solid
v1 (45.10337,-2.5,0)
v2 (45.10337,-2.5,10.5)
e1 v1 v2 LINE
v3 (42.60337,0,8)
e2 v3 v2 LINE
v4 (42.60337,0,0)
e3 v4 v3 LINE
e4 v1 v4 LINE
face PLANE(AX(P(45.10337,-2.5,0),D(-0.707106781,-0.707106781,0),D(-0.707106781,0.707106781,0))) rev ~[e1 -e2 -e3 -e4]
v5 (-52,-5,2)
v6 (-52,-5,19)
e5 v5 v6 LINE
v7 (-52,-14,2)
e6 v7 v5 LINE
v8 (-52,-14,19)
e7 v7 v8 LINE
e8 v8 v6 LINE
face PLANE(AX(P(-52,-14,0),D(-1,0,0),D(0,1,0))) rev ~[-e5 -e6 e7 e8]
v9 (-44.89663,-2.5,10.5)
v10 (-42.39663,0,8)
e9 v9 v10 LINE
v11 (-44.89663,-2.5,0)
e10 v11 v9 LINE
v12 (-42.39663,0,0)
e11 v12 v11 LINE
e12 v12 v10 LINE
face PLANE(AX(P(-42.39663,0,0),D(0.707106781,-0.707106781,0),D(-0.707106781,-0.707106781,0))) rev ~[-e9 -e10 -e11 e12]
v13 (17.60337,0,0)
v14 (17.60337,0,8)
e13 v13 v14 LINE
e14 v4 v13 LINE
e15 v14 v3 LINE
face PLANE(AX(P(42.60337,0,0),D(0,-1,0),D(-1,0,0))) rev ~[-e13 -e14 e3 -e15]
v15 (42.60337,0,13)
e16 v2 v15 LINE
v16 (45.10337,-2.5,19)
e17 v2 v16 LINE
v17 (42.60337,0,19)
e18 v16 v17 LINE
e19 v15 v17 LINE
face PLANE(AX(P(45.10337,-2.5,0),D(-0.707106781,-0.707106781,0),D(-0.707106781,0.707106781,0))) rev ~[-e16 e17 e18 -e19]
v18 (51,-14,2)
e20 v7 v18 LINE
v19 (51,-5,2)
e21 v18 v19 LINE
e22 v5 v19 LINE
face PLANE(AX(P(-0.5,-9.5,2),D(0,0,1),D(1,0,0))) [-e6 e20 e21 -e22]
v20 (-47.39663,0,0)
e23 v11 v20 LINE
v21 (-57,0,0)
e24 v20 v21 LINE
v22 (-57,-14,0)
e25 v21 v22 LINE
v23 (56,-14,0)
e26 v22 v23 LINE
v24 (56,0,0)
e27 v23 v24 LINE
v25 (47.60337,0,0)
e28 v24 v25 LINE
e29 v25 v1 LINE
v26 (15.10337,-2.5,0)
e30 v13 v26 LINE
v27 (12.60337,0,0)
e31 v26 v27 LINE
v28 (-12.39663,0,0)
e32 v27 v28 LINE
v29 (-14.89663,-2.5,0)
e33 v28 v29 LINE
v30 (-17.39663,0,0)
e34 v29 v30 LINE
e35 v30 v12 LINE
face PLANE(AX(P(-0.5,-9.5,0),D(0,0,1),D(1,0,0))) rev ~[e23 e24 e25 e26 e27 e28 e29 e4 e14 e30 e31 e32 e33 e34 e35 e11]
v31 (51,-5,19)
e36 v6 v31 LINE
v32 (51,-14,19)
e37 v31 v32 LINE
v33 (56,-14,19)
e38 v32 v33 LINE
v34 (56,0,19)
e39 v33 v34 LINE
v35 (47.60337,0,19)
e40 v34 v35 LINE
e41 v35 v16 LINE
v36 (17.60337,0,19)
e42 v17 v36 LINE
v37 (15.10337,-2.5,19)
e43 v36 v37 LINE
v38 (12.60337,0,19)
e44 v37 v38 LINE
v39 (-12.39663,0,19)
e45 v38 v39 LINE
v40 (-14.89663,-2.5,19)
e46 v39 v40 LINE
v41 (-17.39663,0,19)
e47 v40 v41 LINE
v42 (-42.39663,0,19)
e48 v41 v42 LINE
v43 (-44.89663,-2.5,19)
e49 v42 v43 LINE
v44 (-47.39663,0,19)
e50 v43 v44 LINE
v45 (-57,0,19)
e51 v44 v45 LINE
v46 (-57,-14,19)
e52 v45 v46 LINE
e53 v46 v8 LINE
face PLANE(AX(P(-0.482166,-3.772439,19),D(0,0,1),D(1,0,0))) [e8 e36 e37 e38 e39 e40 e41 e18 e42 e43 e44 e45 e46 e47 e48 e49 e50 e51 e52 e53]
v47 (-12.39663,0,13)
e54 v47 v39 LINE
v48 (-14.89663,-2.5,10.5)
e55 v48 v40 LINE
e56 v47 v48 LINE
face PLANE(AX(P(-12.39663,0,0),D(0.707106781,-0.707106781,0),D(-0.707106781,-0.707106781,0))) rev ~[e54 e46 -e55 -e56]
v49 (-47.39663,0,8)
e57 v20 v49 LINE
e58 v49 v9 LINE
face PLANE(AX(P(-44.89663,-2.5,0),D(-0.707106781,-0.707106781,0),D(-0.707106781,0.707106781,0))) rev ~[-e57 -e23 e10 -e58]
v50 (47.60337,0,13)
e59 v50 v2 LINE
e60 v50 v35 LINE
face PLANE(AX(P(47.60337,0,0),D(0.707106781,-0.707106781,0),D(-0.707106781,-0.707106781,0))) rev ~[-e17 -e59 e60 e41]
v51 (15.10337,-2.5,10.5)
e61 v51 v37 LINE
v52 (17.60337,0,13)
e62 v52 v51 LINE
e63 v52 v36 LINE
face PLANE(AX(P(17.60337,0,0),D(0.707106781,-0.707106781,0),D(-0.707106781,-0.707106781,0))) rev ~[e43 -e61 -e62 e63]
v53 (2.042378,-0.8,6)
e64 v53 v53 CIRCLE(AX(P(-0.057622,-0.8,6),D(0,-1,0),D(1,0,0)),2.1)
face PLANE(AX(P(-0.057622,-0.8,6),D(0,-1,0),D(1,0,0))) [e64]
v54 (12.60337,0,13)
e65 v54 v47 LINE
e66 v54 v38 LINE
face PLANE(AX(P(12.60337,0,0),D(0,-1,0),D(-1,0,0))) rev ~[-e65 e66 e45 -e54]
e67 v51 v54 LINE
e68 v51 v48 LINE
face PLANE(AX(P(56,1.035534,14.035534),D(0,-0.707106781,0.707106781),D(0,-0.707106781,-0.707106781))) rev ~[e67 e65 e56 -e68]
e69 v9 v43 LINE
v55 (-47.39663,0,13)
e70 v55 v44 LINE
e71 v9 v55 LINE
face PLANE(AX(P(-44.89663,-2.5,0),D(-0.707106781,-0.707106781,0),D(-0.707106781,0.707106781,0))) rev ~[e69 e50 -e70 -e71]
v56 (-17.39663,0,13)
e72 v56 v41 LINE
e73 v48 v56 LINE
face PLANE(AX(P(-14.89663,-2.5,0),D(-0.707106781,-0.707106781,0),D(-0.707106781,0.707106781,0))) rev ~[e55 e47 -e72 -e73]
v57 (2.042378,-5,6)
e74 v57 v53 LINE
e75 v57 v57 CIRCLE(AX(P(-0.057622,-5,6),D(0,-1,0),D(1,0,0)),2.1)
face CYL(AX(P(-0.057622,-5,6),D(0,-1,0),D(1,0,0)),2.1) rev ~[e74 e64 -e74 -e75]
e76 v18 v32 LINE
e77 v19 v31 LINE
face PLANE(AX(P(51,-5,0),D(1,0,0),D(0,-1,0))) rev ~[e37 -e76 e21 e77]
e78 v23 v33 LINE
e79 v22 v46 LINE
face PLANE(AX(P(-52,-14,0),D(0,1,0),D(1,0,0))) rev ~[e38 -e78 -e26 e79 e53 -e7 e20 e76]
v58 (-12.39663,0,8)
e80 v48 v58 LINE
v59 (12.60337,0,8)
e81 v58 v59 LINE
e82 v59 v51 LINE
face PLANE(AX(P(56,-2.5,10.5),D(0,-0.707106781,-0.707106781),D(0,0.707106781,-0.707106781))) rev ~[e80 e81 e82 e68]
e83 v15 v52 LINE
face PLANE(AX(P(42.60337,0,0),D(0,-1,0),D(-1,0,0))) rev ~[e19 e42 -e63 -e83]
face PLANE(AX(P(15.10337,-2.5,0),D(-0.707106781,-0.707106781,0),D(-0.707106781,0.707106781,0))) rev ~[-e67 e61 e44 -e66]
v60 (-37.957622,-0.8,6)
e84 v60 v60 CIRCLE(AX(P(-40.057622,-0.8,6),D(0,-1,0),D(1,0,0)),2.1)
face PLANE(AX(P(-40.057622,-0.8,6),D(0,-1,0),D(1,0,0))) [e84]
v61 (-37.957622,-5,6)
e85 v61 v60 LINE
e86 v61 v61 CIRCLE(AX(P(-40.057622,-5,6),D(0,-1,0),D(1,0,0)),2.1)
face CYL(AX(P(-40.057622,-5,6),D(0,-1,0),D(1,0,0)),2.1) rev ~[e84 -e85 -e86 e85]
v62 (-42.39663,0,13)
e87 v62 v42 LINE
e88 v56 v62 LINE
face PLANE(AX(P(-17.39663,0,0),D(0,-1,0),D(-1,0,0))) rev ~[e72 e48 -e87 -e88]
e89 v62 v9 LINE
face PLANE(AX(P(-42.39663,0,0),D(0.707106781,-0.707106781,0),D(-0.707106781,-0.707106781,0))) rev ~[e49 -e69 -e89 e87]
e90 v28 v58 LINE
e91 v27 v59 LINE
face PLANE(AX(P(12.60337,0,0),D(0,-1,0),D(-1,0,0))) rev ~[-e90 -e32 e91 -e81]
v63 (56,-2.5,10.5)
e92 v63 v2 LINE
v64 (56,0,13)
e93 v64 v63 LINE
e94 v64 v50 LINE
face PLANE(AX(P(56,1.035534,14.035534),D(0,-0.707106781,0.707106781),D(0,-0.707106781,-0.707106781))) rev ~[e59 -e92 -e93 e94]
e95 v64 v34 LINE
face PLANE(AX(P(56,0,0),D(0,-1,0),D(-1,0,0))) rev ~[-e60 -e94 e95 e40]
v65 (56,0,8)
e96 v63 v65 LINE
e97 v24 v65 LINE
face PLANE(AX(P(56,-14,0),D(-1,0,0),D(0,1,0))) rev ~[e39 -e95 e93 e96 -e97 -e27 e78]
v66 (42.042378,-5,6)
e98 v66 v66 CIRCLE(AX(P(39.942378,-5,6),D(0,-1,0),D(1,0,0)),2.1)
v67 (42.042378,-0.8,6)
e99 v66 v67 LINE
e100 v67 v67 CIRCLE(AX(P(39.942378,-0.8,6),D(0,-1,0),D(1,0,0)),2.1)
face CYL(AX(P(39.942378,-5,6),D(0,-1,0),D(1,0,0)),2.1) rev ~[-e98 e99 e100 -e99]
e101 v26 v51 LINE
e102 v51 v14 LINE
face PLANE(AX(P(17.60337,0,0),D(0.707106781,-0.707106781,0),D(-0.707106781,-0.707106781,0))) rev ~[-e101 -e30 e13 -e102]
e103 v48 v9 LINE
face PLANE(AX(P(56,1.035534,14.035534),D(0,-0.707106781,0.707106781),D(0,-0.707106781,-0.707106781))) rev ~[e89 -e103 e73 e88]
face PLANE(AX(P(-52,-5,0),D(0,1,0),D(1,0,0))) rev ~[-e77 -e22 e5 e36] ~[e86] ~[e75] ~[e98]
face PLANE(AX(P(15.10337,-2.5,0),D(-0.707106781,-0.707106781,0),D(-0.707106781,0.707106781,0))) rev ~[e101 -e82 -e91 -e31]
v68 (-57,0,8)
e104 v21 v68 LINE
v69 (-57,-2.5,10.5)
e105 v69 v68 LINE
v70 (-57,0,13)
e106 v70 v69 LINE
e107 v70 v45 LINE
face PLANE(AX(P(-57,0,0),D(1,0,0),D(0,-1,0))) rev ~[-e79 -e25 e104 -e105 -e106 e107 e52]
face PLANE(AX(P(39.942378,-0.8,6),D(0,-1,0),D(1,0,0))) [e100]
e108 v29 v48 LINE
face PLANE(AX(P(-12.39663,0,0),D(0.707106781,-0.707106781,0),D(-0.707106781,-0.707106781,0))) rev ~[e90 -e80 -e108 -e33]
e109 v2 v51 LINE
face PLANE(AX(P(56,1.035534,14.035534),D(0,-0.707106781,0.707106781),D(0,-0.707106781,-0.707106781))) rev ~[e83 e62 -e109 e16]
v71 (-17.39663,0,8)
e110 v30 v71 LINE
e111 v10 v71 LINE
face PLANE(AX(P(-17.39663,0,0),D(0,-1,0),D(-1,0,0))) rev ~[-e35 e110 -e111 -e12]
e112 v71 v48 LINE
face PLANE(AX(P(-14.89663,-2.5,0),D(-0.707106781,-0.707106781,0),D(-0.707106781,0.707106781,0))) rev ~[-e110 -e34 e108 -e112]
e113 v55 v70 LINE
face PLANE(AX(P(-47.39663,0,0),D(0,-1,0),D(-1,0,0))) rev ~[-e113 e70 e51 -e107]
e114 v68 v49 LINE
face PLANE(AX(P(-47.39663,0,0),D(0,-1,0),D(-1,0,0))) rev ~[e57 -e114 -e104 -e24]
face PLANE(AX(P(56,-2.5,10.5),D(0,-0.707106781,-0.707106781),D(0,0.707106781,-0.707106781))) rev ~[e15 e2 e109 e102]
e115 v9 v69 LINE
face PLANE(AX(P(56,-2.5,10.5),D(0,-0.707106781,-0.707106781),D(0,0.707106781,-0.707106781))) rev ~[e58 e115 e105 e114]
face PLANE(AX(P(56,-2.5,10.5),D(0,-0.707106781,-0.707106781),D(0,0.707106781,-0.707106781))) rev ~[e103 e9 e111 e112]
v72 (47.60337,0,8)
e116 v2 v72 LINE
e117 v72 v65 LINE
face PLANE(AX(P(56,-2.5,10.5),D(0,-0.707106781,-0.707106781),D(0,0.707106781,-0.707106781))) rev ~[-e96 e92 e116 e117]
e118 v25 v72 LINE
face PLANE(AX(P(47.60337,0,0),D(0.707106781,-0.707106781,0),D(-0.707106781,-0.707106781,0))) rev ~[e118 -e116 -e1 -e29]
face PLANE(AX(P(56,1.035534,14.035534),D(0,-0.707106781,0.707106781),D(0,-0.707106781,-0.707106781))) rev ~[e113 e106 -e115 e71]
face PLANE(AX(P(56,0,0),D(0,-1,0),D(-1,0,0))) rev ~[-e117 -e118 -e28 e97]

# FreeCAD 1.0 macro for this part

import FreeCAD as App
import Part
import Sketcher

V = App.Vector

doc = App.newDocument("Part")
body = doc.addObject("PartDesign::Body", "Body")

sketch1 = doc.addObject("Sketcher::SketchObject", "Sketch")
body.addObject(sketch1)
sketch1.AttachmentSupport = (doc.XY_Plane, [""])
sketch1.MapMode = "FlatFace"
sketch1.addGeometry(Part.LineSegment(V(-52, -14, 0), V(-52, -5, 0)), False)
sketch1.addGeometry(Part.LineSegment(V(-52, -5, 0), V(51, -5, 0)), False)
sketch1.addGeometry(Part.LineSegment(V(51, -5, 0), V(51, -14, 0)), False)
sketch1.addGeometry(Part.LineSegment(V(51, -14, 0), V(56, -14, 0)), False)
sketch1.addGeometry(Part.LineSegment(V(56, -14, 0), V(56, 0, 0)), False)
sketch1.addGeometry(Part.LineSegment(V(56, 0, 0), V(47.6, 0, 0)), False)
sketch1.addGeometry(Part.LineSegment(V(47.6, 0, 0), V(45.1, -2.5, 0)), False)
sketch1.addGeometry(Part.LineSegment(V(45.1, -2.5, 0), V(42.6, 0, 0)), False)
sketch1.addGeometry(Part.LineSegment(V(42.6, 0, 0), V(17.6, 0, 0)), False)
sketch1.addGeometry(Part.LineSegment(V(17.6, 0, 0), V(15.1, -2.5, 0)), False)
sketch1.addGeometry(Part.LineSegment(V(15.1, -2.5, 0), V(12.6, 0, 0)), False)
sketch1.addGeometry(Part.LineSegment(V(12.6, 0, 0), V(-12.4, 0, 0)), False)
sketch1.addGeometry(Part.LineSegment(V(-12.4, 0, 0), V(-14.9, -2.5, 0)), False)
sketch1.addGeometry(Part.LineSegment(V(-14.9, -2.5, 0), V(-17.4, 0, 0)), False)
sketch1.addGeometry(Part.LineSegment(V(-17.4, 0, 0), V(-42.4, 0, 0)), False)
sketch1.addGeometry(Part.LineSegment(V(-42.4, 0, 0), V(-44.9, -2.5, 0)), False)
sketch1.addGeometry(Part.LineSegment(V(-44.9, -2.5, 0), V(-47.4, 0, 0)), False)
sketch1.addGeometry(Part.LineSegment(V(-47.4, 0, 0), V(-57, 0, 0)), False)
sketch1.addGeometry(Part.LineSegment(V(-57, 0, 0), V(-57, -14, 0)), False)
sketch1.addGeometry(Part.LineSegment(V(-57, -14, 0), V(-52, -14, 0)), False)
sketch1.addConstraint(Sketcher.Constraint("Coincident", 0, 2, 1, 1))
sketch1.addConstraint(Sketcher.Constraint("Coincident", 1, 2, 2, 1))
sketch1.addConstraint(Sketcher.Constraint("Coincident", 2, 2, 3, 1))
sketch1.addConstraint(Sketcher.Constraint("Coincident", 3, 2, 4, 1))
sketch1.addConstraint(Sketcher.Constraint("Coincident", 4, 2, 5, 1))
sketch1.addConstraint(Sketcher.Constraint("Coincident", 5, 2, 6, 1))
sketch1.addConstraint(Sketcher.Constraint("Coincident", 6, 2, 7, 1))
sketch1.addConstraint(Sketcher.Constraint("Coincident", 7, 2, 8, 1))
sketch1.addConstraint(Sketcher.Constraint("Coincident", 8, 2, 9, 1))
sketch1.addConstraint(Sketcher.Constraint("Coincident", 9, 2, 10, 1))
sketch1.addConstraint(Sketcher.Constraint("Coincident", 10, 2, 11, 1))
sketch1.addConstraint(Sketcher.Constraint("Coincident", 11, 2, 12, 1))
sketch1.addConstraint(Sketcher.Constraint("Coincident", 12, 2, 13, 1))
sketch1.addConstraint(Sketcher.Constraint("Coincident", 13, 2, 14, 1))
sketch1.addConstraint(Sketcher.Constraint("Coincident", 14, 2, 15, 1))
sketch1.addConstraint(Sketcher.Constraint("Coincident", 15, 2, 16, 1))
sketch1.addConstraint(Sketcher.Constraint("Coincident", 16, 2, 17, 1))
sketch1.addConstraint(Sketcher.Constraint("Coincident", 17, 2, 18, 1))
sketch1.addConstraint(Sketcher.Constraint("Coincident", 18, 2, 19, 1))
sketch1.addConstraint(Sketcher.Constraint("Coincident", 19, 2, 0, 1))
sketch1.addConstraint(Sketcher.Constraint("Vertical", 0))
sketch1.addConstraint(Sketcher.Constraint("Horizontal", 1))
sketch1.addConstraint(Sketcher.Constraint("Vertical", 2))
sketch1.addConstraint(Sketcher.Constraint("Horizontal", 3))
sketch1.addConstraint(Sketcher.Constraint("Vertical", 4))
sketch1.addConstraint(Sketcher.Constraint("Horizontal", 5))
sketch1.addConstraint(Sketcher.Constraint("Horizontal", 8))
sketch1.addConstraint(Sketcher.Constraint("Horizontal", 11))
sketch1.addConstraint(Sketcher.Constraint("Horizontal", 14))
sketch1.addConstraint(Sketcher.Constraint("Horizontal", 17))
sketch1.addConstraint(Sketcher.Constraint("Vertical", 18))
sketch1.addConstraint(Sketcher.Constraint("Horizontal", 19))
sketch1.addConstraint(Sketcher.Constraint("PointOnObject", 4, 2, -1))
sketch1.addConstraint(Sketcher.Constraint("PointOnObject", 7, 2, -1))
sketch1.addConstraint(Sketcher.Constraint("PointOnObject", 10, 2, -1))
sketch1.addConstraint(Sketcher.Constraint("PointOnObject", 13, 2, -1))
sketch1.addConstraint(Sketcher.Constraint("PointOnObject", 16, 2, -1))
sketch1.addConstraint(Sketcher.Constraint("Perpendicular", 6, 7))
sketch1.addConstraint(Sketcher.Constraint("Perpendicular", 7, 9))
sketch1.addConstraint(Sketcher.Constraint("Perpendicular", 9, 10))
sketch1.addConstraint(Sketcher.Constraint("Perpendicular", 10, 12))
sketch1.addConstraint(Sketcher.Constraint("Perpendicular", 12, 13))
sketch1.addConstraint(Sketcher.Constraint("Perpendicular", 13, 15))
sketch1.addConstraint(Sketcher.Constraint("Perpendicular", 15, 16))
sketch1.addConstraint(Sketcher.Constraint("Horizontal", 6, 2, 9, 2))
sketch1.addConstraint(Sketcher.Constraint("Horizontal", 9, 2, 12, 2))
sketch1.addConstraint(Sketcher.Constraint("Horizontal", 12, 2, 15, 2))
sketch1.addConstraint(Sketcher.Constraint("Horizontal", 3, 2, 18, 2))
sketch1.addConstraint(Sketcher.Constraint("Equal", 8, 11))
sketch1.addConstraint(Sketcher.Constraint("Equal", 11, 14))
sketch1.addConstraint(Sketcher.Constraint("Equal", 3, 19))
sketch1.addConstraint(Sketcher.Constraint("Equal", 6, 7))
sketch1.addConstraint(Sketcher.Constraint("DistanceX", 1, 1, 1, 2, 103.0))
sketch1.addConstraint(Sketcher.Constraint("DistanceX", 3, 1, 3, 2, 5.0))
sketch1.addConstraint(Sketcher.Constraint("DistanceX", 8, 2, 8, 1, 25.0))
sketch1.addConstraint(Sketcher.Constraint("DistanceY", 0, 1, 0, 2, 9.0))
sketch1.addConstraint(Sketcher.Constraint("DistanceY", 4, 1, 4, 2, 14.0))
sketch1.addConstraint(Sketcher.Constraint("DistanceX", 0, 2, -1, 1, 52.0))
sketch1.addConstraint(Sketcher.Constraint("DistanceX", 7, 2, 5, 2, 5.0))
sketch1.addConstraint(Sketcher.Constraint("DistanceX", 5, 2, 5, 1, 8.39663))
pad1 = doc.addObject("PartDesign::Pad", "Pad")
body.addObject(pad1)
pad1.Profile = sketch1
pad1.Length = 19

sketch2 = doc.addObject("Sketcher::SketchObject", "Sketch001")
body.addObject(sketch2)
sketch2.AttachmentSupport = (doc.XY_Plane, [""])
sketch2.MapMode = "FlatFace"
sketch2.addGeometry(Part.LineSegment(V(-52, -5, 0), V(-52, -14, 0)), False)
sketch2.addGeometry(Part.LineSegment(V(-52, -14, 0), V(51, -14, 0)), False)
sketch2.addGeometry(Part.LineSegment(V(51, -14, 0), V(51, -5, 0)), False)
sketch2.addGeometry(Part.LineSegment(V(51, -5, 0), V(-52, -5, 0)), False)
sketch2.addConstraint(Sketcher.Constraint("Coincident", 0, 2, 1, 1))
sketch2.addConstraint(Sketcher.Constraint("Coincident", 1, 2, 2, 1))
sketch2.addConstraint(Sketcher.Constraint("Coincident", 2, 2, 3, 1))
sketch2.addConstraint(Sketcher.Constraint("Coincident", 3, 2, 0, 1))
sketch2.addConstraint(Sketcher.Constraint("Vertical", 0))
sketch2.addConstraint(Sketcher.Constraint("Horizontal", 1))
sketch2.addConstraint(Sketcher.Constraint("Vertical", 2))
sketch2.addConstraint(Sketcher.Constraint("Horizontal", 3))
sketch2.addConstraint(Sketcher.Constraint("DistanceX", 1, 1, 1, 2, 103.0))
sketch2.addConstraint(Sketcher.Constraint("DistanceY", 0, 2, 0, 1, 9.0))
sketch2.addConstraint(Sketcher.Constraint("DistanceX", 0, 2, -1, 1, 52.0))
sketch2.addConstraint(Sketcher.Constraint("DistanceY", 0, 2, -1, 1, 14.0))
pad2 = doc.addObject("PartDesign::Pad", "Pad001")
body.addObject(pad2)
pad2.Profile = sketch2
pad2.Length = 2

sketch3 = doc.addObject("Sketcher::SketchObject", "Sketch002")
body.addObject(sketch3)
sketch3.AttachmentSupport = (doc.YZ_Plane, [""])
sketch3.MapMode = "FlatFace"
sketch3.AttachmentOffset = App.Placement(V(0, 0, 56), App.Rotation())
sketch3.addGeometry(Part.LineSegment(V(-2, 10, 0), V(1, 7, 0)), False)
sketch3.addGeometry(Part.LineSegment(V(1, 7, 0), V(1, 14, 0)), False)
sketch3.addGeometry(Part.LineSegment(V(1, 14, 0), V(-2, 10, 0)), False)
sketch3.addConstraint(Sketcher.Constraint("Coincident", 0, 2, 1, 1))
sketch3.addConstraint(Sketcher.Constraint("Coincident", 1, 2, 2, 1))
sketch3.addConstraint(Sketcher.Constraint("Coincident", 2, 2, 0, 1))
sketch3.addConstraint(Sketcher.Constraint("Vertical", 1))
sketch3.addConstraint(Sketcher.Constraint("Perpendicular", 0, 2))
sketch3.addConstraint(Sketcher.Constraint("Equal", 0, 2))
sketch3.addConstraint(Sketcher.Constraint("Distance", 0, 5.0))
sketch3.addConstraint(Sketcher.Constraint("DistanceX", 2, 2, -1, 1, 2.5))
sketch3.addConstraint(Sketcher.Constraint("DistanceY", -1, 1, 2, 2, 10.5))
pocket1 = doc.addObject("PartDesign::Pocket", "Pocket")
body.addObject(pocket1)
pocket1.Profile = sketch3
pocket1.Length = 120

sketch4 = doc.addObject("Sketcher::SketchObject", "Sketch003")
body.addObject(sketch4)
sketch4.AttachmentSupport = (doc.XZ_Plane, [""])
sketch4.MapMode = "FlatFace"
sketch4.AttachmentOffset = App.Placement(V(0, 0, 5), App.Rotation())
sketch4.addGeometry(Part.Circle(V(-40.1, 6, 0), V(0, 0, 1), 2.1), False)
sketch4.addGeometry(Part.Circle(V(-0.1, 6, 0), V(0, 0, 1), 2.1), False)
sketch4.addGeometry(Part.Circle(V(39.9, 6, 0), V(0, 0, 1), 2.1), False)
sketch4.addConstraint(Sketcher.Constraint("Equal", 0, 1))
sketch4.addConstraint(Sketcher.Constraint("Equal", 1, 2))
sketch4.addConstraint(Sketcher.Constraint("Horizontal", 0, 3, 1, 3))
sketch4.addConstraint(Sketcher.Constraint("Horizontal", 1, 3, 2, 3))
sketch4.addConstraint(Sketcher.Constraint("Diameter", 0, 4.2))
sketch4.addConstraint(Sketcher.Constraint("DistanceY", -1, 1, 0, 3, 6.0))
sketch4.addConstraint(Sketcher.Constraint("DistanceX", 0, 3, 1, 3, 40.0))
sketch4.addConstraint(Sketcher.Constraint("DistanceX", 1, 3, 2, 3, 40.0))
sketch4.addConstraint(Sketcher.Constraint("DistanceX", 0, 3, -1, 1, 40.057622))
pocket2 = doc.addObject("PartDesign::Pocket", "Pocket001")
body.addObject(pocket2)
pocket2.Profile = sketch4
pocket2.Length = 4.2

doc.recompute()
